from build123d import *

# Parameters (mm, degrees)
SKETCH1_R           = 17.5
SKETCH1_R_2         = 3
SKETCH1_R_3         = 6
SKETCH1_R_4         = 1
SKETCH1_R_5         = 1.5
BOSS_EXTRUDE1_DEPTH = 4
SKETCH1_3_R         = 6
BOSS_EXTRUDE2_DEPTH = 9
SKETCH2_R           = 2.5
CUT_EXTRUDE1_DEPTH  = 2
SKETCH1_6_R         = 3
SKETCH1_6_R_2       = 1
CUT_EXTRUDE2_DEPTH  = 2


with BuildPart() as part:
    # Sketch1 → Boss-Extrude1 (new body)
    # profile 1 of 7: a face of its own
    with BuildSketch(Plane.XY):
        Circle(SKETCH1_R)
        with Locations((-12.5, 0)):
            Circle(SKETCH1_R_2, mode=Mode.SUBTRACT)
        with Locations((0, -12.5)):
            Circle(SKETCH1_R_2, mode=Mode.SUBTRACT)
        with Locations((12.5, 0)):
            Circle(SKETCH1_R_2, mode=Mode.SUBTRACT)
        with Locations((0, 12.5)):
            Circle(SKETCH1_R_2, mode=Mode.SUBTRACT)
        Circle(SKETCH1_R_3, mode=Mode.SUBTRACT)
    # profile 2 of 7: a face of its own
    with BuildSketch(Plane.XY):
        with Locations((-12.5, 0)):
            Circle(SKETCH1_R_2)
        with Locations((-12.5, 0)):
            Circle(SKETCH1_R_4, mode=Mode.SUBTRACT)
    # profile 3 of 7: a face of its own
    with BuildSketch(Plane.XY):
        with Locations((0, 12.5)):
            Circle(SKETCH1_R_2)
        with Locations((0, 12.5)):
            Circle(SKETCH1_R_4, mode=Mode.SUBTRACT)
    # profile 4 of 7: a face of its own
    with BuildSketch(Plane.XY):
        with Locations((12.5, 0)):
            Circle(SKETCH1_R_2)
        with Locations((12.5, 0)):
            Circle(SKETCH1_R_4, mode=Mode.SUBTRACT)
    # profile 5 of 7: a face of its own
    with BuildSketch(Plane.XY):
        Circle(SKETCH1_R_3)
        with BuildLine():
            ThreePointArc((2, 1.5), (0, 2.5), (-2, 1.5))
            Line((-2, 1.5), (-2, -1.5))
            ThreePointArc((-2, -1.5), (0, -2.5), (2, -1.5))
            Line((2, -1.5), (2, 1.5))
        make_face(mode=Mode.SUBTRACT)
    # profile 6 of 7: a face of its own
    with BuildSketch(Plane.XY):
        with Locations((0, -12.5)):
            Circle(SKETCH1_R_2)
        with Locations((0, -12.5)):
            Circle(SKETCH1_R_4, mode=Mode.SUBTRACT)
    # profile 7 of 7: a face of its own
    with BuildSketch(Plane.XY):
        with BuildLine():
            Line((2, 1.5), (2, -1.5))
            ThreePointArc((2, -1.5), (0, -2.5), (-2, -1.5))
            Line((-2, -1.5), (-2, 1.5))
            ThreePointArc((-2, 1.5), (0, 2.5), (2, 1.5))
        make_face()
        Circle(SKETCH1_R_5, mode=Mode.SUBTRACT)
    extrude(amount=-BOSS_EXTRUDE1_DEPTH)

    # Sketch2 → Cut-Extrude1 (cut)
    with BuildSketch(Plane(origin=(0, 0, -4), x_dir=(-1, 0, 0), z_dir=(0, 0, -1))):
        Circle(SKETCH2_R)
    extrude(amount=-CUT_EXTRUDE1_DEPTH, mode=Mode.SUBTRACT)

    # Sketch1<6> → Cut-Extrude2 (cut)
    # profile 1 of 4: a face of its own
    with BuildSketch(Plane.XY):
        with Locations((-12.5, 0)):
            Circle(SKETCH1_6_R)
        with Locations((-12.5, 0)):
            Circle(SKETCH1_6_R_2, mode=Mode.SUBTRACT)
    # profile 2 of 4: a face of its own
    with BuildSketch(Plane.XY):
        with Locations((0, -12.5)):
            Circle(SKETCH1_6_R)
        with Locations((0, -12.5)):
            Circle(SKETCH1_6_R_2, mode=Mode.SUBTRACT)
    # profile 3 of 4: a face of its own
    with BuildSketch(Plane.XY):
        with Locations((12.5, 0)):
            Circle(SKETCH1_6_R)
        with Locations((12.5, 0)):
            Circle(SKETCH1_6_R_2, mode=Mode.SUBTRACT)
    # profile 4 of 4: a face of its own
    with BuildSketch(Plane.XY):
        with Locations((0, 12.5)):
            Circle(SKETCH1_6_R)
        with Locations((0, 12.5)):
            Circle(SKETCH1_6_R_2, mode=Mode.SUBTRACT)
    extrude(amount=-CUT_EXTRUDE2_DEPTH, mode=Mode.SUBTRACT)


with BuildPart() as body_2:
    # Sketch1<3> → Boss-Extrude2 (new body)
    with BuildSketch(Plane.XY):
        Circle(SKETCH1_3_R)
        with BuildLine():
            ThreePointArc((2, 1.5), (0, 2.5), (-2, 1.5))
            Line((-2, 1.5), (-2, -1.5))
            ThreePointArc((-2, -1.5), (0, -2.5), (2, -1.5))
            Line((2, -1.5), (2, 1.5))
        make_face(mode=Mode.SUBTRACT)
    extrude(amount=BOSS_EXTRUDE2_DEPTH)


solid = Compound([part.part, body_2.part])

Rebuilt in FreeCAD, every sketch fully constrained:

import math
import FreeCAD as App
import Part
import Sketcher
from FreeCAD import Vector

doc = App.newDocument("Part")
body = doc.addObject("PartDesign::Body", "Body")

# Sketch on XY plane
sketch1 = body.newObject("Sketcher::SketchObject", "Sketch")
sketch1.AttachmentSupport = (doc.getObject("XY_Plane"), [""])
sketch1.MapMode = "FlatFace"
sketch1.addGeometry([
    Part.Circle(Vector(0, 0, 0), Vector(0, 0, 1), 17.5),  # 0
    Part.Circle(Vector(0, -12.5, 0), Vector(0, 0, 1), 1),  # 1
    Part.Circle(Vector(-12.5, 0, 0), Vector(0, 0, 1), 1),  # 2
    Part.Circle(Vector(12.5, 0, 0), Vector(0, 0, 1), 1),  # 3
    Part.Circle(Vector(0, 12.5, 0), Vector(0, 0, 1), 1),  # 4
    Part.Circle(Vector(0, 0, 0), Vector(0, 0, 1), 1.5),  # 5
], False)
sketch1.addConstraint([
    Sketcher.Constraint("Coincident", 0, 3, -1, 1),
    Sketcher.Constraint("Coincident", 5, 3, -1, 1),
    Sketcher.Constraint("Equal", 1, 2),
    Sketcher.Constraint("Equal", 2, 3),
    Sketcher.Constraint("Equal", 3, 4),
    Sketcher.Constraint("Symmetric", 2, 3, 3, 3, -1, 1),
    Sketcher.Constraint("Symmetric", 1, 3, 4, 3, -1, 1),
    Sketcher.Constraint("PointOnObject", 1, 3, -2),
    Sketcher.Constraint("PointOnObject", 2, 3, -1),
    Sketcher.Constraint("Diameter", 0, 35.0),
    Sketcher.Constraint("Diameter", 1, 2.0),
    Sketcher.Constraint("Diameter", 5, 3.0),
    Sketcher.Constraint("DistanceX", 2, 3, 3, 3, 25.0),
    Sketcher.Constraint("DistanceY", 1, 3, 4, 3, 25.0),
])
pad1 = body.newObject("PartDesign::Pad", "Pad")
pad1.Profile = sketch1
pad1.Length = 4
pad1.Reversed = True

# Sketch on XY plane
sketch2 = body.newObject("Sketcher::SketchObject", "Sketch001")
sketch2.AttachmentSupport = (doc.getObject("XY_Plane"), [""])
sketch2.MapMode = "FlatFace"
sketch2.AttachmentOffset = App.Placement(Vector(0, 0, -4), App.Rotation())
sketch2.addGeometry(Part.Circle(Vector(0, 0, 0), Vector(0, 0, 1), 2.5), False)
sketch2.addConstraint([
    Sketcher.Constraint("Coincident", 0, 3, -1, 1),
    Sketcher.Constraint("Diameter", 0, 5.0),
])
pocket1 = body.newObject("PartDesign::Pocket", "Pocket")
pocket1.Profile = sketch2
pocket1.Length = 2
pocket1.Reversed = True

# Sketch on XY plane
sketch3 = body.newObject("Sketcher::SketchObject", "Sketch002")
sketch3.AttachmentSupport = (doc.getObject("XY_Plane"), [""])
sketch3.MapMode = "FlatFace"
sketch3.addGeometry([
    Part.Circle(Vector(-12.5, 0, 0), Vector(0, 0, 1), 3),  # 0
    Part.Circle(Vector(-12.5, 0, 0), Vector(0, 0, 1), 1),  # 1
    Part.Circle(Vector(0, -12.5, 0), Vector(0, 0, 1), 3),  # 2
    Part.Circle(Vector(0, -12.5, 0), Vector(0, 0, 1), 1),  # 3
    Part.Circle(Vector(12.5, 0, 0), Vector(0, 0, 1), 3),  # 4
    Part.Circle(Vector(12.5, 0, 0), Vector(0, 0, 1), 1),  # 5
    Part.Circle(Vector(0, 12.5, 0), Vector(0, 0, 1), 3),  # 6
    Part.Circle(Vector(0, 12.5, 0), Vector(0, 0, 1), 1),  # 7
], False)
sketch3.addConstraint([
    Sketcher.Constraint("Coincident", 1, 3, 0, 3),
    Sketcher.Constraint("Coincident", 3, 3, 2, 3),
    Sketcher.Constraint("Coincident", 5, 3, 4, 3),
    Sketcher.Constraint("Coincident", 7, 3, 6, 3),
    Sketcher.Constraint("Equal", 0, 2),
    Sketcher.Constraint("Equal", 1, 3),
    Sketcher.Constraint("Equal", 2, 4),
    Sketcher.Constraint("Equal", 3, 5),
    Sketcher.Constraint("Equal", 4, 6),
    Sketcher.Constraint("Equal", 5, 7),
    Sketcher.Constraint("Symmetric", 0, 3, 4, 3, -1, 1),
    Sketcher.Constraint("Symmetric", 2, 3, 6, 3, -1, 1),
    Sketcher.Constraint("PointOnObject", 0, 3, -1),
    Sketcher.Constraint("PointOnObject", 2, 3, -2),
    Sketcher.Constraint("Diameter", 0, 6.0),
    Sketcher.Constraint("Diameter", 1, 2.0),
    Sketcher.Constraint("DistanceX", 0, 3, 4, 3, 25.0),
    Sketcher.Constraint("DistanceY", 2, 3, 6, 3, 25.0),
])
pocket2 = body.newObject("PartDesign::Pocket", "Pocket001")
pocket2.Profile = sketch3
pocket2.Length = 2
body2 = doc.addObject("PartDesign::Body", "Body001")

# Sketch on XY plane
sketch4 = body2.newObject("Sketcher::SketchObject", "Sketch003")
sketch4.AttachmentSupport = (doc.getObject("XY_Plane001"), [""])
sketch4.MapMode = "FlatFace"
sketch4.addGeometry([
    Part.Circle(Vector(0, 0, 0), Vector(0, 0, 1), 6),  # 0
    Part.ArcOfCircle(Part.Circle(Vector(0, 0, 0), Vector(0, 0, 1), 2.5), math.radians(37), math.radians(143)),  # 1
    Part.LineSegment(Vector(2, 1.5, 0), Vector(2, -1.5, 0)),  # 2
    Part.ArcOfCircle(Part.Circle(Vector(0, 0, 0), Vector(0, 0, 1), 2.5), math.radians(-143), math.radians(-37)),  # 3
    Part.LineSegment(Vector(-2, -1.5, 0), Vector(-2, 1.5, 0)),  # 4
], False)
sketch4.addConstraint([
    Sketcher.Constraint("Coincident", 1, 1, 2, 1),
    Sketcher.Constraint("Coincident", 2, 2, 3, 2),
    Sketcher.Constraint("Coincident", 3, 1, 4, 1),
    Sketcher.Constraint("Coincident", 4, 2, 1, 2),
    Sketcher.Constraint("Vertical", 2),
    Sketcher.Constraint("Vertical", 4),
    Sketcher.Constraint("Coincident", 0, 3, -1, 1),
    Sketcher.Constraint("Coincident", 1, 3, -1, 1),
    Sketcher.Constraint("Coincident", 3, 3, -1, 1),
    Sketcher.Constraint("Equal", 1, 3),
    Sketcher.Constraint("Horizontal", 2, 2, 3, 1),
    Sketcher.Constraint("Diameter", 0, 12.0),
    Sketcher.Constraint("Radius", 1, 2.5),
    Sketcher.Constraint("DistanceY", 2, 2, 2, 1, 3.0),
])
pad2 = body2.newObject("PartDesign::Pad", "Pad001")
pad2.Profile = sketch4
pad2.Length = 9

doc.recompute()
